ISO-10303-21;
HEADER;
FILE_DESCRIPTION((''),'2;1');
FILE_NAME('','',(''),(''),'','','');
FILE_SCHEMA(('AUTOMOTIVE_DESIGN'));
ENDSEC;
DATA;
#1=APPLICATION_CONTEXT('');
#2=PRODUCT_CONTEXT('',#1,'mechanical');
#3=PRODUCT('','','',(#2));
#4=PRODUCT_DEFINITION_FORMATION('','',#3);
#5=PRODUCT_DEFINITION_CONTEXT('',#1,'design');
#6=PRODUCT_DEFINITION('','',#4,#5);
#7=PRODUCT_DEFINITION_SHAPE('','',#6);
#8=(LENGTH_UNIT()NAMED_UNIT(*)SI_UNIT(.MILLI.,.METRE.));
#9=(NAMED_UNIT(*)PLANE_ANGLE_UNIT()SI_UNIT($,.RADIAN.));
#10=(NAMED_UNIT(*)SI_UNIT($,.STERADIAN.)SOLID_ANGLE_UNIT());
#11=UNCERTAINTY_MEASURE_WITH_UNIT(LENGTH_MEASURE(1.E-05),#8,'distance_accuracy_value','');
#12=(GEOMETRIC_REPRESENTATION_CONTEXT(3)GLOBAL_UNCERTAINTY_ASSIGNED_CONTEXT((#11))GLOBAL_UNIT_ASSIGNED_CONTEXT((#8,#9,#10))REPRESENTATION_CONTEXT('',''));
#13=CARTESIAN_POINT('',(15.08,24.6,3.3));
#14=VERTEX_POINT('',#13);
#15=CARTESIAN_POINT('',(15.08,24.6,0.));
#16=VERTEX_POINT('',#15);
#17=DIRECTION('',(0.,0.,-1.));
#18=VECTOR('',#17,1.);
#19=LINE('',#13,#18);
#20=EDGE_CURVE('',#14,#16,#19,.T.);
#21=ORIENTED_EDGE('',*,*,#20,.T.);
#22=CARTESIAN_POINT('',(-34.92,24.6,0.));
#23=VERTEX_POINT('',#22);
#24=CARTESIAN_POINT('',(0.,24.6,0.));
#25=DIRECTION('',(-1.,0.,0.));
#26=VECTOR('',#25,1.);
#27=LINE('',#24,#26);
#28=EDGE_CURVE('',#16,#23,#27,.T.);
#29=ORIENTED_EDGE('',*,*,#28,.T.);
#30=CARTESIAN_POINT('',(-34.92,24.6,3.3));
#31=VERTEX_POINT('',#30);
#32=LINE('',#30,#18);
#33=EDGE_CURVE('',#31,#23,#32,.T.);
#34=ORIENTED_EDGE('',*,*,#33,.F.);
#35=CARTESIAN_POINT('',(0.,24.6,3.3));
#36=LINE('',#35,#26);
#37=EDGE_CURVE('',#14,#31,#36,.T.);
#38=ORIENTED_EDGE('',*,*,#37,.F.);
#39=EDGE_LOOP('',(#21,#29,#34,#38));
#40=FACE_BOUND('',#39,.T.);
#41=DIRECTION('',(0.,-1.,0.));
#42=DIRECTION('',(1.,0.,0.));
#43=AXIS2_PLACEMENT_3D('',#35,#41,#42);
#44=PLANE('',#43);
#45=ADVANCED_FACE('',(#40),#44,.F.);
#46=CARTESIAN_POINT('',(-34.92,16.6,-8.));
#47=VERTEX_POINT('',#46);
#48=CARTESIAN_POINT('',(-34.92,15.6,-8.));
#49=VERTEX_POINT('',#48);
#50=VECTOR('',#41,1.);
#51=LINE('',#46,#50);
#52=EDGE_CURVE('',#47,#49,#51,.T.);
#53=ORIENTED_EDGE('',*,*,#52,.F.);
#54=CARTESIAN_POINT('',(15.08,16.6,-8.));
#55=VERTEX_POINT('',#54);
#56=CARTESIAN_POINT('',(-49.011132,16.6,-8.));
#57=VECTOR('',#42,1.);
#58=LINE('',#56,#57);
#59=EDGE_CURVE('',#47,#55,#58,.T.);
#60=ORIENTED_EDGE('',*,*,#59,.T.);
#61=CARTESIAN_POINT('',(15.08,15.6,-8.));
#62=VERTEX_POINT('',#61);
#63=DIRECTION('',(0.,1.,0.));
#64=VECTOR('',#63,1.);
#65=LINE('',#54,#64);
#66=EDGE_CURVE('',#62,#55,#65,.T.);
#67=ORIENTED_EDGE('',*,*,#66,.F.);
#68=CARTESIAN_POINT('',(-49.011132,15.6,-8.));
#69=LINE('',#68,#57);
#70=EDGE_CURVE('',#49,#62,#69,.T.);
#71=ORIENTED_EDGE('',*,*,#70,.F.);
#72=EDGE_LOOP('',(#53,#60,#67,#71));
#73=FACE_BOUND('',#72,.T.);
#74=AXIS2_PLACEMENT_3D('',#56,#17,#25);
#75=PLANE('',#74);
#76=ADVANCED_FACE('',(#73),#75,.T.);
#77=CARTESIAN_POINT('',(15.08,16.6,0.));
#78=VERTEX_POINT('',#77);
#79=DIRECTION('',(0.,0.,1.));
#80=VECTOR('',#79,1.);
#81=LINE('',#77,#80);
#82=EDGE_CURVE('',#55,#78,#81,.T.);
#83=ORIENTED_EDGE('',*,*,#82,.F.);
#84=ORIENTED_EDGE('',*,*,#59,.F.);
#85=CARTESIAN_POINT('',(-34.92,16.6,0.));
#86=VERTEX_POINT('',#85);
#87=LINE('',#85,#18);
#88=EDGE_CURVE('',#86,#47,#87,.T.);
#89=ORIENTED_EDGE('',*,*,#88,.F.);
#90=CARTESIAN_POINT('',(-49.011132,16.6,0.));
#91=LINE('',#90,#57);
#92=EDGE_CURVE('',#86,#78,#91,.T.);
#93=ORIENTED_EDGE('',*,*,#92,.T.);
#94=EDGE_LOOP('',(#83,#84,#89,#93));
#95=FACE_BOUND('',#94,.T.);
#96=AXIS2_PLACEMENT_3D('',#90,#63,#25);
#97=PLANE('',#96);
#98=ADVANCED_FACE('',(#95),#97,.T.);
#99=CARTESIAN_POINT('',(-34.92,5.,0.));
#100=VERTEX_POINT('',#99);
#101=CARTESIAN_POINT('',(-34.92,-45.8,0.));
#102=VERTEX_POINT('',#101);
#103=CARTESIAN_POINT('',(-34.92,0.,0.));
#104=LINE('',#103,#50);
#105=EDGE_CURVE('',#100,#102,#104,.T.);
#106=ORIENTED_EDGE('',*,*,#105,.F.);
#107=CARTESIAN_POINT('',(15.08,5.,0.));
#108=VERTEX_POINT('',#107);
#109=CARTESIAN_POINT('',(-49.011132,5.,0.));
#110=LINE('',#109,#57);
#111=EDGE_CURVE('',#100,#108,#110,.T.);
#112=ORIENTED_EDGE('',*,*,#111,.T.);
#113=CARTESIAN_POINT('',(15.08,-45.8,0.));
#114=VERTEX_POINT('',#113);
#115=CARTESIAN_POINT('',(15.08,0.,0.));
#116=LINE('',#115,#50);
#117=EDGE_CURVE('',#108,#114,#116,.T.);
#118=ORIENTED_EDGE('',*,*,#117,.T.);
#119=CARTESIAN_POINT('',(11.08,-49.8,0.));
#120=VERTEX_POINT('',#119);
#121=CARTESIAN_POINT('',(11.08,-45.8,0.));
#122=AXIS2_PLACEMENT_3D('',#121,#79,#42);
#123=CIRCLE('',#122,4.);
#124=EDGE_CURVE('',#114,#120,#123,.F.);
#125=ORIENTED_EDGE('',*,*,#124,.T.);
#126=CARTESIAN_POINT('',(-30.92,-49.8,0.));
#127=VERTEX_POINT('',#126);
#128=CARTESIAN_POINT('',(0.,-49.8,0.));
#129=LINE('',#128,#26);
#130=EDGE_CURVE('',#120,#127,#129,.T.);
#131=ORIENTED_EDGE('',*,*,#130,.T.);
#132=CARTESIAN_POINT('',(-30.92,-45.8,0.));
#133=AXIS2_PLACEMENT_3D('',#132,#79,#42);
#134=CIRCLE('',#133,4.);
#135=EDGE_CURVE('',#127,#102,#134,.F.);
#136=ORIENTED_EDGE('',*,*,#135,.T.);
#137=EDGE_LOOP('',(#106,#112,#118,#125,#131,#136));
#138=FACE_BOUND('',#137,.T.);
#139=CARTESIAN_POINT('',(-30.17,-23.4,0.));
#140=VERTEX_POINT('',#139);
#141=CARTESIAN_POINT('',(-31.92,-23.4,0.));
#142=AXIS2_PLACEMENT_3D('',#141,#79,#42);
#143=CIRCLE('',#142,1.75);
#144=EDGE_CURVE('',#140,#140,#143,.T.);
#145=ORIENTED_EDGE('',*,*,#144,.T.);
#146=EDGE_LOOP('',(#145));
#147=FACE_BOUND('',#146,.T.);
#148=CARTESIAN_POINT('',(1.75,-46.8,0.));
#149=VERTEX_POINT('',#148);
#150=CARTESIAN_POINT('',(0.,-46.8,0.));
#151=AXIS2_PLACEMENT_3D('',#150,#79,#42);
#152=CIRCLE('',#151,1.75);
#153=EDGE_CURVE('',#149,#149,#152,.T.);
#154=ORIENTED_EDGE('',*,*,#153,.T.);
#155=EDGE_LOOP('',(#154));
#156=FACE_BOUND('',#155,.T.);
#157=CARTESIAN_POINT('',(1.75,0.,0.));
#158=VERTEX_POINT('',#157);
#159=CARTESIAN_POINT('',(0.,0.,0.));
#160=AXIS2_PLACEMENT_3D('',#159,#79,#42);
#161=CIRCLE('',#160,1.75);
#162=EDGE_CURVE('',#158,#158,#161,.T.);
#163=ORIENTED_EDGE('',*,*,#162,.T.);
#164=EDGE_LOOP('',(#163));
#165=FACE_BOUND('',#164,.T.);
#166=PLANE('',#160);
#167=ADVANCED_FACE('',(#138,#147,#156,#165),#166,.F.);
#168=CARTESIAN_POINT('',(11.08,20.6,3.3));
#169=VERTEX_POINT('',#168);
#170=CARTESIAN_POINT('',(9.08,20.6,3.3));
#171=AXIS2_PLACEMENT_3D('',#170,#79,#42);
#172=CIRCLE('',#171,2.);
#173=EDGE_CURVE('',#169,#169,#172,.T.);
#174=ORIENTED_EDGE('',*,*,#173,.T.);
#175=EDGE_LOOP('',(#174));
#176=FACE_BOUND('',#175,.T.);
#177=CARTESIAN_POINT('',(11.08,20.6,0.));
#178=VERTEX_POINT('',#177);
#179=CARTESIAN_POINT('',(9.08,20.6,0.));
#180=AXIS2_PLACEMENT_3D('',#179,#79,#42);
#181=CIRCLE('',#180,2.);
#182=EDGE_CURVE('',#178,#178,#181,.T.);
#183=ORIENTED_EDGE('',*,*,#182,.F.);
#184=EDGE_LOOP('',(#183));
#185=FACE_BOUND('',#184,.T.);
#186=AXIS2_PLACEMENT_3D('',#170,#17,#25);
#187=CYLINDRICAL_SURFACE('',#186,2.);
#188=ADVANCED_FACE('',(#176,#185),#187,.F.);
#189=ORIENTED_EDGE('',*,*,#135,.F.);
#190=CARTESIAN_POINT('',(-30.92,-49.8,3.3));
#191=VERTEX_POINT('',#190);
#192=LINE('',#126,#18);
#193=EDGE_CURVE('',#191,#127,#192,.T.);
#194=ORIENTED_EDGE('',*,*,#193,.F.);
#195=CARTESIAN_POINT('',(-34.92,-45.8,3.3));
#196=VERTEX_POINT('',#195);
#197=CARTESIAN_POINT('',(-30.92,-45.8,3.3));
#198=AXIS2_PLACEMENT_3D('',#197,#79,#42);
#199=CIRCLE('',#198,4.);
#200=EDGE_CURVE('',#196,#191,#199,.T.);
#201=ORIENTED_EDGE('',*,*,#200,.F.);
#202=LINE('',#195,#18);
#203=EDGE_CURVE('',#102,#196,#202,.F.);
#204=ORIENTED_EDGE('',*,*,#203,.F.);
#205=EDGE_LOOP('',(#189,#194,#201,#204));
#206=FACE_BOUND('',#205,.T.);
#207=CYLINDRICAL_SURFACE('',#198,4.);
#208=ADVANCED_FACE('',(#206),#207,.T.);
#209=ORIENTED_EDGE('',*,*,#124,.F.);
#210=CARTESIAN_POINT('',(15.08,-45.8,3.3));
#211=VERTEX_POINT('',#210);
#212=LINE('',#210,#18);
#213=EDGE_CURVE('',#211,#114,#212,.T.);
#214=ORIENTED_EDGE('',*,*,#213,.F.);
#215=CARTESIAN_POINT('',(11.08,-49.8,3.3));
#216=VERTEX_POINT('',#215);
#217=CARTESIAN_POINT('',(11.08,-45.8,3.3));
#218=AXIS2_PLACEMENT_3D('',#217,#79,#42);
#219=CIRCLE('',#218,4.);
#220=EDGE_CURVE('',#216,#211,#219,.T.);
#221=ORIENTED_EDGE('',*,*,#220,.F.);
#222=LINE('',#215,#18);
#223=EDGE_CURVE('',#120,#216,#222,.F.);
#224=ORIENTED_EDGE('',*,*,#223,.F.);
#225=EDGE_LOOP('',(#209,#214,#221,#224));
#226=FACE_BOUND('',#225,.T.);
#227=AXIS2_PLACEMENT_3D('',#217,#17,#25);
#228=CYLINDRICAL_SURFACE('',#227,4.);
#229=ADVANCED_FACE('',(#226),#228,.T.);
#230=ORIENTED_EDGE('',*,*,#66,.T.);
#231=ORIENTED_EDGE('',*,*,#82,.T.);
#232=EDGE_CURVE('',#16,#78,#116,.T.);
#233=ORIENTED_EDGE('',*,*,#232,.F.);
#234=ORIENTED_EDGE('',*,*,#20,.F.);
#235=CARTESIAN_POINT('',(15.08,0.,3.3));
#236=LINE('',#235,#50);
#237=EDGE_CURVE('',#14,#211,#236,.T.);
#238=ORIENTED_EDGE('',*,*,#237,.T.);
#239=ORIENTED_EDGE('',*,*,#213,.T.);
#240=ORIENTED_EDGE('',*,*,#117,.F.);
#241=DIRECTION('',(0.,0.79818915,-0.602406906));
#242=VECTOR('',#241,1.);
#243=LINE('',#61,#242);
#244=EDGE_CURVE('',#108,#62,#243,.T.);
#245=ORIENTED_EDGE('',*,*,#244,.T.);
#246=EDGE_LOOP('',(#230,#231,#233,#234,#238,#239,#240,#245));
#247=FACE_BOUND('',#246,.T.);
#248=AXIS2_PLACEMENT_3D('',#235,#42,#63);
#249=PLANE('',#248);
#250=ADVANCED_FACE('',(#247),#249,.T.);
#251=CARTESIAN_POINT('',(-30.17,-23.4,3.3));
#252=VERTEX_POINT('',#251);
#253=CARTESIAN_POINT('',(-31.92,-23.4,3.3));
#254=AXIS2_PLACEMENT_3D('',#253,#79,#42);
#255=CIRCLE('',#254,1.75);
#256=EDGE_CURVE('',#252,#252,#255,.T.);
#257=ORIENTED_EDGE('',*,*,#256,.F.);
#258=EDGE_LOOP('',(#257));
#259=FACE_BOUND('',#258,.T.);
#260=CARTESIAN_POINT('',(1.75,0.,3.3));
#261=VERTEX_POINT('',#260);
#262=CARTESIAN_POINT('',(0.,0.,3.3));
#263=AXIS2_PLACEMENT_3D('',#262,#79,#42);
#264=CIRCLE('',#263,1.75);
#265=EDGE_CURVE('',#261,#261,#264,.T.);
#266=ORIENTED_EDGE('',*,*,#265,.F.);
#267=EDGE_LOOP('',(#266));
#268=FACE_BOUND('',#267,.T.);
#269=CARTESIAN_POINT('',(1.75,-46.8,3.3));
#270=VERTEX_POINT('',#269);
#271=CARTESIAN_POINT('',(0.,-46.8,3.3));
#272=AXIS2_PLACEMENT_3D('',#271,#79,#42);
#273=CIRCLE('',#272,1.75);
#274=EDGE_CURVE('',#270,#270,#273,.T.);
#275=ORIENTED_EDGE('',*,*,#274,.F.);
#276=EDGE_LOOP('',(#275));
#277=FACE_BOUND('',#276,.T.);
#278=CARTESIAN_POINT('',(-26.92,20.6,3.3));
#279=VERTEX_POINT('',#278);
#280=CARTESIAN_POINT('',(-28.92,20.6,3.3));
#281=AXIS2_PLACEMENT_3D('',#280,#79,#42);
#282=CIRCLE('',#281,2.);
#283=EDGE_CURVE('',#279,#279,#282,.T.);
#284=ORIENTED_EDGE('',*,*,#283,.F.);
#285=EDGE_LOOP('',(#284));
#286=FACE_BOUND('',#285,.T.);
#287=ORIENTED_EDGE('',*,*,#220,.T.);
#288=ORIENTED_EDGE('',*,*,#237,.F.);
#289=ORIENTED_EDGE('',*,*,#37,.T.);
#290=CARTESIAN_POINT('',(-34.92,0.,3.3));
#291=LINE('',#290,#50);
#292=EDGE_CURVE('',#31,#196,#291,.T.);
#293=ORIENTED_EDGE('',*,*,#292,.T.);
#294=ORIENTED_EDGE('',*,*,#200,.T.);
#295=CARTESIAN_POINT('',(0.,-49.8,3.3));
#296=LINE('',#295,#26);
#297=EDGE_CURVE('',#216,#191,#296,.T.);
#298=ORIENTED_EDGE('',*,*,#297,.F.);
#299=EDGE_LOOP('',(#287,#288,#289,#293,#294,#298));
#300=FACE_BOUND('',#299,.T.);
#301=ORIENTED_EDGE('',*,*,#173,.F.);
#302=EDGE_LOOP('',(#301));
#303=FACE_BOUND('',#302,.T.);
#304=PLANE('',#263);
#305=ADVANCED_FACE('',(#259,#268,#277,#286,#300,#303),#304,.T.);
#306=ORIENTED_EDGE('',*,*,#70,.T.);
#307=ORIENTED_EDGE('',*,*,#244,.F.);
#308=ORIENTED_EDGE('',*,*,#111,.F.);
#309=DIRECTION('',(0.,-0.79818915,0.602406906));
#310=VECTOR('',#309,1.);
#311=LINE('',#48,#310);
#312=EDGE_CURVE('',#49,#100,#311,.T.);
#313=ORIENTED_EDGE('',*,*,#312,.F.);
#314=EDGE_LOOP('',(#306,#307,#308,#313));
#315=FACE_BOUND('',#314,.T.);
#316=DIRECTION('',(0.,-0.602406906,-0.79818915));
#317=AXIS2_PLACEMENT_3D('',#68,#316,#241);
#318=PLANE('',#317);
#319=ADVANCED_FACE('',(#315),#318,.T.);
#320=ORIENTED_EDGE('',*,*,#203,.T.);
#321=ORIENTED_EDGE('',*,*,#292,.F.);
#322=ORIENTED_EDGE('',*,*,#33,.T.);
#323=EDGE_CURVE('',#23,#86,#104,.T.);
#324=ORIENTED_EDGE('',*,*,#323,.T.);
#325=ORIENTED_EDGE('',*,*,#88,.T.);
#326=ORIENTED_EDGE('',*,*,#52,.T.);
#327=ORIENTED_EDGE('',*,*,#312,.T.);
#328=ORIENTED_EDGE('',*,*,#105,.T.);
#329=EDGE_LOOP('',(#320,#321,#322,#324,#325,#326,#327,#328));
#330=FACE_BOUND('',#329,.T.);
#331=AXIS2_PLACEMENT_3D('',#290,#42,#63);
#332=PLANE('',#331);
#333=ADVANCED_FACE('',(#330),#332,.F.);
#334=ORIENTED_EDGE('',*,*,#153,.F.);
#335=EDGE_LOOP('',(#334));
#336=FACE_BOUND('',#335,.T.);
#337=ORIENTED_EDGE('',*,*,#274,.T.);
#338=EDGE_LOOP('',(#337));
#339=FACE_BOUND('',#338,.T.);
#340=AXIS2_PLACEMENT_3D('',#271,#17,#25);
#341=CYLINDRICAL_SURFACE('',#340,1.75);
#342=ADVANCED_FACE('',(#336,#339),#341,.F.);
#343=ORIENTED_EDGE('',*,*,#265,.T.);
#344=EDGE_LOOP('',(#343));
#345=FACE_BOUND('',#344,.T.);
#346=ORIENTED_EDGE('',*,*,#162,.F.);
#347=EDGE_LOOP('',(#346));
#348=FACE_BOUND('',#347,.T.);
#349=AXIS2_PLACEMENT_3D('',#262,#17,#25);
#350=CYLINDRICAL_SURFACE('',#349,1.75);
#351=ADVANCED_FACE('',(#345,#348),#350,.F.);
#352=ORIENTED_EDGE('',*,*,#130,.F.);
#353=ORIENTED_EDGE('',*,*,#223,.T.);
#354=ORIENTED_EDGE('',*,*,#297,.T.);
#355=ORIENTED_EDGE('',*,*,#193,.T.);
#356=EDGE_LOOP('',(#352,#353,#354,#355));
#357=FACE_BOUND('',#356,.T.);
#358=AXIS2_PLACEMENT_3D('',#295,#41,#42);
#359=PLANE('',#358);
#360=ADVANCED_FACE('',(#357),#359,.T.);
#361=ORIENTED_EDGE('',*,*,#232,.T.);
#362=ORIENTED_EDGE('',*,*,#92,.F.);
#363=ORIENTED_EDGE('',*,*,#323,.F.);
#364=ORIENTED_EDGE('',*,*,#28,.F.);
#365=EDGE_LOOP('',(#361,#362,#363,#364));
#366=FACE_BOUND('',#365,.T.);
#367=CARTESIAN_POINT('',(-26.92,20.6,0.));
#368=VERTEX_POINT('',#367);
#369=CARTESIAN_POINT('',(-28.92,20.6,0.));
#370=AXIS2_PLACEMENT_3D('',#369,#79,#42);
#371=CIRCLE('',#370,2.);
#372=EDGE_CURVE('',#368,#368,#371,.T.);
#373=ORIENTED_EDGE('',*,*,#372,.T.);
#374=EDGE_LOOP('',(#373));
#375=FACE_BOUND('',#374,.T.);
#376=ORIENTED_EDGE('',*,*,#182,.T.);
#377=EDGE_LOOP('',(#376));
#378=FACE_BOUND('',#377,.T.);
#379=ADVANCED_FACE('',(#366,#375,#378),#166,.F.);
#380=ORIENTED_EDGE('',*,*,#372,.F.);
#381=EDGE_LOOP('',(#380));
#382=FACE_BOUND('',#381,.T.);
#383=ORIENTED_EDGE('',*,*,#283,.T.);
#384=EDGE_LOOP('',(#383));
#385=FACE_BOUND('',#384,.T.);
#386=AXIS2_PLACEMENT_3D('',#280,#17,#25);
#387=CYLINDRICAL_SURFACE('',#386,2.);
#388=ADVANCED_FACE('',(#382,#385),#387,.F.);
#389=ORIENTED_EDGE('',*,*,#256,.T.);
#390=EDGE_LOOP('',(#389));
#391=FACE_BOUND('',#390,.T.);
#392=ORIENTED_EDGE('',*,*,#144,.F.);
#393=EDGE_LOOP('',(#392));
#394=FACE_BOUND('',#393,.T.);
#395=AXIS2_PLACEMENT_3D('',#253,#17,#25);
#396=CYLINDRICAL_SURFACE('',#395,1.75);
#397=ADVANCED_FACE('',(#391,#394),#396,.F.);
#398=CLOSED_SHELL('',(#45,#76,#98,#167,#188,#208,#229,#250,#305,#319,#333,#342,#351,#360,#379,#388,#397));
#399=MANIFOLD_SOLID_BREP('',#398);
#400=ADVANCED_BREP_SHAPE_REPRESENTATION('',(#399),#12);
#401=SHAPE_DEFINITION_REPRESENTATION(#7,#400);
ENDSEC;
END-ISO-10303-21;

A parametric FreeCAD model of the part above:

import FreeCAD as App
import Part
import Sketcher
from FreeCAD import Vector


def edges_at(feature, points):
    """Names of the edges that pass closest to the given points."""
    edges = feature.Shape.Edges
    near = lambda p: min(range(len(edges)), key=lambda i: edges[i].distToShape(Part.Vertex(*p))[0])
    return sorted({f"Edge{near(p) + 1}" for p in points})


def add_polygon(sketch, points):
    """Adds a closed chain of lines whose ends are joined by coincident constraints."""
    first, n = sketch.GeometryCount, len(points)
    for a, b in zip(points, points[1:] + points[:1]):
        sketch.addGeometry(Part.LineSegment(App.Vector(*a, 0), App.Vector(*b, 0)), False)
    for i in range(n):
        sketch.addConstraint(Sketcher.Constraint("Coincident", first + i, 2, first + (i + 1) % n, 1))

doc = App.newDocument("Part")
body = doc.addObject("PartDesign::Body", "Body")

sketch1 = doc.addObject("Sketcher::SketchObject", "Sketch")
body.addObject(sketch1)
sketch1.AttachmentSupport = (doc.XY_Plane, [""])
sketch1.MapMode = "FlatFace"
add_polygon(sketch1, [(-34.9, 24.6), (-34.9, -49.8), (15.1, -49.8), (15.1, 24.6)])
sketch1.addGeometry(Part.Circle(Vector(-31.9, -23.4, 0), Vector(0, 0, 1), 1.8), False)
sketch1.addGeometry(Part.Circle(Vector(0, -46.8, 0), Vector(0, 0, 1), 1.8), False)
sketch1.addGeometry(Part.Circle(Vector(-28.9, 20.6, 0), Vector(0, 0, 1), 2), False)
sketch1.addGeometry(Part.Circle(Vector(0, 0, 0), Vector(0, 0, 1), 1.8), False)
sketch1.addGeometry(Part.Circle(Vector(9.1, 20.6, 0), Vector(0, 0, 1), 2), False)
sketch1.addConstraint([
    Sketcher.Constraint("Vertical", 0),
    Sketcher.Constraint("Horizontal", 1),
    Sketcher.Constraint("Vertical", 2),
    Sketcher.Constraint("Horizontal", 3),
    Sketcher.Constraint("Coincident", 7, 3, -1, 1),
    Sketcher.Constraint("Equal", 4, 5),
    Sketcher.Constraint("Equal", 5, 7),
    Sketcher.Constraint("Equal", 6, 8),
    Sketcher.Constraint("PointOnObject", 5, 3, -2),
    Sketcher.Constraint("Horizontal", 6, 3, 8, 3),
    Sketcher.Constraint("Diameter", 6, 4.0),
    Sketcher.Constraint("Diameter", 4, 3.5),
    Sketcher.Constraint("DistanceX", 1, 1, 1, 2, 50.0),
    Sketcher.Constraint("DistanceY", 0, 2, 0, 1, 74.4),
    Sketcher.Constraint("DistanceX", 4, 3, 6, 3, 3.0),
    Sketcher.Constraint("DistanceY", 4, 3, 6, 3, 44.0),
    Sketcher.Constraint("DistanceX", 6, 3, 8, 3, 38.0),
    Sketcher.Constraint("DistanceX", 0, 2, 4, 3, 3.0),
    Sketcher.Constraint("DistanceY", 0, 2, 5, 3, 3.0),
    Sketcher.Constraint("DistanceY", 8, 3, 2, 2, 4.0),
    Sketcher.Constraint("DistanceY", 4, 3, -1, 1, 23.4),
    Sketcher.Constraint("DistanceX", 4, 3, -1, 1, 31.92),
])
pad1 = doc.addObject("PartDesign::Pad", "Pad")
body.addObject(pad1)
pad1.Profile = sketch1
pad1.Length = 3.3
doc.recompute()

fillet = doc.addObject("PartDesign::Fillet", "Fillet")
body.addObject(fillet)
fillet.Base = (pad1, edges_at(pad1, [(15.08, -49.8, 1.65), (-34.92, -49.8, 1.65)]))
fillet.Radius = 4

sketch2 = doc.addObject("Sketcher::SketchObject", "Sketch001")
body.addObject(sketch2)
sketch2.AttachmentSupport = (doc.YZ_Plane, [""])
sketch2.MapMode = "FlatFace"
sketch2.AttachmentOffset = App.Placement(Vector(0, 0, 15.08), App.Rotation())
add_polygon(sketch2, [(16.6, -8), (16.6, 0), (5, 0), (15.6, -8)])
sketch2.addConstraint([
    Sketcher.Constraint("Vertical", 0),
    Sketcher.Constraint("Horizontal", 1),
    Sketcher.Constraint("Horizontal", 3),
    Sketcher.Constraint("PointOnObject", 0, 2, -1),
    Sketcher.Constraint("DistanceX", 3, 1, 3, 2, 1.0),
    Sketcher.Constraint("DistanceY", 0, 1, 0, 2, 8.0),
    Sketcher.Constraint("DistanceX", 1, 2, 1, 1, 11.6),
    Sketcher.Constraint("DistanceX", -1, 1, 1, 2, 5.0),
])
pad2 = doc.addObject("PartDesign::Pad", "Pad001")
body.addObject(pad2)
pad2.Profile = sketch2
pad2.Length = 50
pad2.Reversed = True

doc.recompute()
